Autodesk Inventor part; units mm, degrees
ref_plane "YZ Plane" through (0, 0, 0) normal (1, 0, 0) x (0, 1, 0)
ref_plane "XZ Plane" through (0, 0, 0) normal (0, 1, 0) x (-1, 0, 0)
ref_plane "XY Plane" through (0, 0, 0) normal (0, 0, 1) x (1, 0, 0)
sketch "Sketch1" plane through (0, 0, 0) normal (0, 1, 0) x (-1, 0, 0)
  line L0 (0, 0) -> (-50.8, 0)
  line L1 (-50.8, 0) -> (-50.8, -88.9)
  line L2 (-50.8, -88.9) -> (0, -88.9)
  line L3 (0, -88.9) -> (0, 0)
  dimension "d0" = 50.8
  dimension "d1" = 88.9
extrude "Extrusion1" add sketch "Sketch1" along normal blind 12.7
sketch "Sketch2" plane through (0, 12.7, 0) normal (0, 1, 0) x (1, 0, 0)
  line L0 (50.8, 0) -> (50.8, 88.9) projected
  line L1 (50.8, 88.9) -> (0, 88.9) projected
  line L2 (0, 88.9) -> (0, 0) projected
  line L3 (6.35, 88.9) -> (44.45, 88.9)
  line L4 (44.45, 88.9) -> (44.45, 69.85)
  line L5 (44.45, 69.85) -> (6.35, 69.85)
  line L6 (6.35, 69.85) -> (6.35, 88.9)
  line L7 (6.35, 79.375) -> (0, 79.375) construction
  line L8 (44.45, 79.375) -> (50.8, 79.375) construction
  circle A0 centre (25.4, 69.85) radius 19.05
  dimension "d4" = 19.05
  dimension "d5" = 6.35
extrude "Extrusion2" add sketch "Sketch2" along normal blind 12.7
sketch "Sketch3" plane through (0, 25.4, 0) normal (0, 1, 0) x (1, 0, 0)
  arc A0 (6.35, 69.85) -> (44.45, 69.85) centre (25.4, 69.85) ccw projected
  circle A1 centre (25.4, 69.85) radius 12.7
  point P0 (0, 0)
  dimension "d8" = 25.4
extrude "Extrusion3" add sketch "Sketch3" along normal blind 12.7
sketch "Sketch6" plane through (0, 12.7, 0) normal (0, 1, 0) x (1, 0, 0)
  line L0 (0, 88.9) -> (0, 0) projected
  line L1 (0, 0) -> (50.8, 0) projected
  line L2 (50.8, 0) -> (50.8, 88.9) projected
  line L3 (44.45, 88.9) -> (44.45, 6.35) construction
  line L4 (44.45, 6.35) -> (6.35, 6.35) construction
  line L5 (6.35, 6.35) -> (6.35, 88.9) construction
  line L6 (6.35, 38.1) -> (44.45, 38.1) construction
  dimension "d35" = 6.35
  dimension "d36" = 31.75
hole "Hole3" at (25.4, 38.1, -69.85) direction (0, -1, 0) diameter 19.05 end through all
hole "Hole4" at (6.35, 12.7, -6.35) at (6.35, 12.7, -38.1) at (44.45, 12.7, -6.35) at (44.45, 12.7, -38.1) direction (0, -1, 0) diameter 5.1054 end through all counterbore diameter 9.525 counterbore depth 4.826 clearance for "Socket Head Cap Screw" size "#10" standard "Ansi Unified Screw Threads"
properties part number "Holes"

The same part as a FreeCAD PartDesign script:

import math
import FreeCAD as App
import Part
import Sketcher
from FreeCAD import Vector
Q = App.Units.Quantity

doc = App.newDocument("Part")
body = doc.addObject("PartDesign::Body", "Body")

# Sketch on XZ plane
sketch1 = body.newObject("Sketcher::SketchObject", "Sketch")
sketch1.AttachmentSupport = (doc.getObject("XZ_Plane"), [""])
sketch1.MapMode = "FlatFace"
sketch1.addGeometry([
    Part.LineSegment(Vector(0, -88.9, 0), Vector(0, 0, 0)),
    Part.LineSegment(Vector(0, 0, 0), Vector(50.8, 0, 0)),
    Part.LineSegment(Vector(50.8, 0, 0), Vector(50.8, -88.9, 0)),
    Part.LineSegment(Vector(50.8, -88.9, 0), Vector(0, -88.9, 0)),
], False)
sketch1.addConstraint([
    Sketcher.Constraint("Coincident", 0, 2, 1, 1),
    Sketcher.Constraint("Coincident", 1, 2, 2, 1),
    Sketcher.Constraint("Coincident", 2, 2, 3, 1),
    Sketcher.Constraint("Coincident", 3, 2, 0, 1),
    Sketcher.Constraint("Vertical", 0),
    Sketcher.Constraint("Horizontal", 1),
    Sketcher.Constraint("Vertical", 2),
    Sketcher.Constraint("Horizontal", 3),
    Sketcher.Constraint("Coincident", 0, 2, -1, 1),
    Sketcher.Constraint("DistanceX", 1, 1, 1, 2, Q("2 in")),
    Sketcher.Constraint("DistanceY", 0, 1, 0, 2, Q("3.5 in")),
])
pad1 = body.newObject("PartDesign::Pad", "Pad")
pad1.Profile = sketch1
pad1.Length = Q("0.5 in")
pad1.Reversed = True

# Sketch on XZ plane
sketch2 = body.newObject("Sketcher::SketchObject", "Sketch001")
sketch2.AttachmentSupport = (doc.getObject("XZ_Plane"), [""])
sketch2.MapMode = "FlatFace"
sketch2.AttachmentOffset = App.Placement(Vector(0, 0, -0.5 * 25.4), App.Rotation())
sketch2.addGeometry([
    Part.LineSegment(Vector(44.45, -69.85, 0), Vector(44.45, -88.9, 0)),
    Part.LineSegment(Vector(44.45, -88.9, 0), Vector(6.35, -88.9, 0)),
    Part.LineSegment(Vector(6.35, -88.9, 0), Vector(6.35, -69.85, 0)),
    Part.ArcOfCircle(Part.Circle(Vector(25.4, -69.85, 0), Vector(0, 0, 1), 19.05), math.radians(0), math.radians(180)),
], False)
sketch2.addConstraint([
    Sketcher.Constraint("Coincident", 0, 2, 1, 1),
    Sketcher.Constraint("Coincident", 1, 2, 2, 1),
    Sketcher.Constraint("Tangent", 2, 2, 3, 2),
    Sketcher.Constraint("Tangent", 3, 1, 0, 1),
    Sketcher.Constraint("Vertical", 0),
    Sketcher.Constraint("Horizontal", 1),
    Sketcher.Constraint("Vertical", 2),
    Sketcher.Constraint("Radius", 3, Q("0.75 in")),
    Sketcher.Constraint("DistanceY", 0, 2, 0, 1, Q("0.75 in")),
    Sketcher.Constraint("DistanceX", -1, 1, 1, 2, Q("0.25 in")),
    Sketcher.Constraint("DistanceY", 0, 2, -1, 1, Q("3.5 in")),
])
pad2 = body.newObject("PartDesign::Pad", "Pad001")
pad2.Profile = sketch2
pad2.Length = Q("0.5 in")
pad2.Reversed = True

# Sketch on XZ plane
sketch3 = body.newObject("Sketcher::SketchObject", "Sketch002")
sketch3.AttachmentSupport = (doc.getObject("XZ_Plane"), [""])
sketch3.MapMode = "FlatFace"
sketch3.AttachmentOffset = App.Placement(Vector(0, 0, -1 * 25.4), App.Rotation())
sketch3.addGeometry(Part.Circle(Vector(25.4, -69.85, 0), Vector(0, 0, 1), 12.7), False)
sketch3.addConstraint([
    Sketcher.Constraint("Diameter", 0, Q("1 in")),
    Sketcher.Constraint("DistanceX", -1, 1, 0, 3, Q("1 in")),
    Sketcher.Constraint("DistanceY", 0, 3, -1, 1, Q("2.75 in")),
])
pad3 = body.newObject("PartDesign::Pad", "Pad002")
pad3.Profile = sketch3
pad3.Length = Q("0.5 in")
pad3.Reversed = True

# Sketch on XZ plane
sketch4 = body.newObject("Sketcher::SketchObject", "Sketch003")
sketch4.AttachmentSupport = (doc.getObject("XZ_Plane"), [""])
sketch4.MapMode = "FlatFace"
sketch4.AttachmentOffset = App.Placement(Vector(0, 0, -1.5 * 25.4), App.Rotation())
sketch4.addGeometry(Part.Circle(Vector(25.4, -69.85, 0), Vector(0, 0, 1), 9.525), False)
sketch4.addConstraint([
    Sketcher.Constraint("Diameter", 0, Q("0.75 in")),
    Sketcher.Constraint("DistanceX", -1, 1, 0, 3, Q("1 in")),
    Sketcher.Constraint("DistanceY", 0, 3, -1, 1, Q("2.75 in")),
])
doc.recompute()
hole = body.newObject("PartDesign::Hole", "Hole")
hole.Profile = sketch4
hole.ThreadType = "None"
hole.Diameter = Q("0.75 in")
hole.DepthType = "ThroughAll"
hole.Reversed = True

# Sketch on XZ plane
sketch5 = body.newObject("Sketcher::SketchObject", "Sketch004")
sketch5.AttachmentSupport = (doc.getObject("XZ_Plane"), [""])
sketch5.MapMode = "FlatFace"
sketch5.AttachmentOffset = App.Placement(Vector(0, 0, -0.5 * 25.4), App.Rotation())
sketch5.addGeometry([
    Part.Circle(Vector(6.35, -6.35, 0), Vector(0, 0, 1), 2.5527),
    Part.Circle(Vector(6.35, -38.1, 0), Vector(0, 0, 1), 2.5527),
    Part.Circle(Vector(44.45, -6.35, 0), Vector(0, 0, 1), 2.5527),
    Part.Circle(Vector(44.45, -38.1, 0), Vector(0, 0, 1), 2.5527),
], False)
sketch5.addConstraint([
    Sketcher.Constraint("Equal", 0, 1),
    Sketcher.Constraint("Equal", 1, 2),
    Sketcher.Constraint("Equal", 2, 3),
    Sketcher.Constraint("Horizontal", 0, 3, 2, 3),
    Sketcher.Constraint("Horizontal", 1, 3, 3, 3),
    Sketcher.Constraint("Vertical", 0, 3, 1, 3),
    Sketcher.Constraint("Vertical", 2, 3, 3, 3),
    Sketcher.Constraint("Diameter", 0, Q("0.201 in")),
    Sketcher.Constraint("DistanceY", 1, 3, -1, 1, Q("1.5 in")),
    Sketcher.Constraint("DistanceX", 0, 3, 2, 3, Q("1.5 in")),
    Sketcher.Constraint("DistanceX", -1, 1, 0, 3, Q("0.25 in")),
    Sketcher.Constraint("DistanceY", 0, 3, -1, 1, Q("0.25 in")),
])
doc.recompute()
hole2 = body.newObject("PartDesign::Hole", "Hole001")
hole2.Profile = sketch5
hole2.ThreadType = "None"
hole2.Diameter = Q("0.201 in")
hole2.DepthType = "ThroughAll"
hole2.HoleCutType = "Counterbore"
hole2.HoleCutDiameter = Q("0.375 in")
hole2.HoleCutDepth = Q("0.19 in")
hole2.Reversed = True

doc.recompute()
